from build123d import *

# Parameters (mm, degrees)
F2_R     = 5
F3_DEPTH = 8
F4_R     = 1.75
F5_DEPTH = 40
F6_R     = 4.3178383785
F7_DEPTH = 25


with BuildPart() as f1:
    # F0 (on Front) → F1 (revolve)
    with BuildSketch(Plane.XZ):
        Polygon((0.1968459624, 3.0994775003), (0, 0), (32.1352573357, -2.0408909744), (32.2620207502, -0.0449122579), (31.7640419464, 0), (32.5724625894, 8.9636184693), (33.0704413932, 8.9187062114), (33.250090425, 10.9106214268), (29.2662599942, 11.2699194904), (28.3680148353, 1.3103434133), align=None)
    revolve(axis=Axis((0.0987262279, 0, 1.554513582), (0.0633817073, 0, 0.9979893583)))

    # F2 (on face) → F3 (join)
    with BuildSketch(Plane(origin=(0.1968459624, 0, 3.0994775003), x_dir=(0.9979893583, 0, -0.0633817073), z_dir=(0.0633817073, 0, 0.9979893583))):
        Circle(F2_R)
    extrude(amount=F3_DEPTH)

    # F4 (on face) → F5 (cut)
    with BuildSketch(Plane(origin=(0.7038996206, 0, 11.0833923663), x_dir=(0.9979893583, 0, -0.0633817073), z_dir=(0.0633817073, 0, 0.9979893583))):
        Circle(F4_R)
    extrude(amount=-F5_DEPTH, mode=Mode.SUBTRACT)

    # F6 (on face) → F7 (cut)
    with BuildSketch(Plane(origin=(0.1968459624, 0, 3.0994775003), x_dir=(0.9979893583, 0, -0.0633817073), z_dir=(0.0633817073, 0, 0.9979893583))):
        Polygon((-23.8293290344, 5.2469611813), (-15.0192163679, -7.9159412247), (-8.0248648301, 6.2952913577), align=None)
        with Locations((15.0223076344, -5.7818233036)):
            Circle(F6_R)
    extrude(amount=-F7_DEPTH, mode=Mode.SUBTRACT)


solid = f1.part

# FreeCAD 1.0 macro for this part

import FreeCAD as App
import Part
import Sketcher
from FreeCAD import Vector
Q = App.Units.Quantity

doc = App.newDocument("Part")
params = doc.addObject("Spreadsheet::Sheet", "Params")
for row, (alias, value) in enumerate([
    ("sketch1_length", "2 mm"),
    ("sketch1_length2", "9 mm"),
    ("sketch1_length3", "4 mm"),
    ("sketch1_length4", "10 mm"),
    ("sketch1_length5", "32.2 mm"),
    ("revolution_angle", "360 deg"),
    ("sketch2_diameter", "10 mm"),
    ("pad1_length", "8 mm"),
    ("sketch3_diameter", "3.5 mm"),
    ("pocket1_length", "40 mm"),
    ("pocket2_length", "25 mm"),
], start=1):
    params.set(f"A{row}", alias)
    params.set(f"B{row}", "=" + value)
    params.setAlias(f"B{row}", alias)

body = doc.addObject("PartDesign::Body", "Body")

# Sketch on XZ plane
sketch1 = body.newObject("Sketcher::SketchObject", "Sketch")
sketch1.AttachmentSupport = (doc.getObject("XZ_Plane"), [""])
sketch1.MapMode = "FlatFace"
sketch1.addGeometry(Part.LineSegment(Vector(0.196846, 3.099477, 0), Vector(0, 0, 0)), False)
sketch1.addGeometry(Part.LineSegment(Vector(0, 0, 0), Vector(32.135257, -2.040891, 0)), False)
sketch1.addGeometry(Part.LineSegment(Vector(32.135257, -2.040891, 0), Vector(32.262021, -0.044912, 0)), False)
sketch1.addGeometry(Part.LineSegment(Vector(32.262021, -0.044912, 0), Vector(31.764042, 0, 0)), False)
sketch1.addGeometry(Part.LineSegment(Vector(31.764042, 0, 0), Vector(32.572463, 8.963618, 0)), False)
sketch1.addGeometry(Part.LineSegment(Vector(32.572463, 8.963618, 0), Vector(33.070441, 8.918706, 0)), False)
sketch1.addGeometry(Part.LineSegment(Vector(33.070441, 8.918706, 0), Vector(33.25009, 10.910621, 0)), False)
sketch1.addGeometry(Part.LineSegment(Vector(33.25009, 10.910621, 0), Vector(29.26626, 11.269919, 0)), False)
sketch1.addGeometry(Part.LineSegment(Vector(29.26626, 11.269919, 0), Vector(28.368015, 1.310343, 0)), False)
sketch1.addGeometry(Part.LineSegment(Vector(28.368015, 1.310343, 0), Vector(0.196846, 3.099477, 0)), False)
sketch1.addGeometry(Part.LineSegment(Vector(0, 0, 0), Vector(0.83044, 13.075861, 0)), True)  # axis
sketch1.addConstraint(Sketcher.Constraint("Coincident", 0, 2, 1, 1))
sketch1.addConstraint(Sketcher.Constraint("Coincident", 1, 2, 2, 1))
sketch1.addConstraint(Sketcher.Constraint("Coincident", 2, 2, 3, 1))
sketch1.addConstraint(Sketcher.Constraint("Coincident", 3, 2, 4, 1))
sketch1.addConstraint(Sketcher.Constraint("Coincident", 4, 2, 5, 1))
sketch1.addConstraint(Sketcher.Constraint("Coincident", 5, 2, 6, 1))
sketch1.addConstraint(Sketcher.Constraint("Coincident", 6, 2, 7, 1))
sketch1.addConstraint(Sketcher.Constraint("Coincident", 7, 2, 8, 1))
sketch1.addConstraint(Sketcher.Constraint("Coincident", 8, 2, 9, 1))
sketch1.addConstraint(Sketcher.Constraint("Coincident", 9, 2, 0, 1))
sketch1.addConstraint(Sketcher.Constraint("Coincident", 0, 2, -1, 1))
sketch1.addConstraint(Sketcher.Constraint("Coincident", 10, 1, -1, 1))
sketch1.addConstraint(Sketcher.Constraint("PointOnObject", 3, 2, -1))
sketch1.addConstraint(Sketcher.Constraint("Perpendicular", 0, 1))
sketch1.addConstraint(Sketcher.Constraint("Perpendicular", 1, 2))
sketch1.addConstraint(Sketcher.Constraint("Perpendicular", 3, 4))
sketch1.addConstraint(Sketcher.Constraint("Perpendicular", 4, 5))
sketch1.addConstraint(Sketcher.Constraint("Perpendicular", 5, 6))
sketch1.addConstraint(Sketcher.Constraint("Perpendicular", 6, 7))
sketch1.addConstraint(Sketcher.Constraint("Perpendicular", 7, 8))
sketch1.addConstraint(Sketcher.Constraint("Perpendicular", 2, 9))
sketch1.addConstraint(Sketcher.Constraint("Perpendicular", 9, 10))
sketch1.addConstraint(Sketcher.Constraint("Equal", 3, 5))
sketch1.addConstraint(Sketcher.Constraint("Equal", 2, 6))
sketch1.addConstraint(Sketcher.Constraint("Distance", 2, Q("2 mm")))
sketch1.addConstraint(Sketcher.Constraint("Distance", 4, Q("9 mm")))
sketch1.addConstraint(Sketcher.Constraint("Distance", 7, Q("4 mm")))
sketch1.addConstraint(Sketcher.Constraint("Distance", 8, Q("10 mm")))
sketch1.addConstraint(Sketcher.Constraint("Distance", 1, Q("32.2 mm")))
sketch1.addConstraint(Sketcher.Constraint("Distance", 3, Q("0.5 mm")))
sketch1.addConstraint(Sketcher.Constraint("DistanceX", 3, 2, 5, 2, Q("1.306399 mm")))
sketch1.addConstraint(Sketcher.Constraint("DistanceX", -1, 1, 10, 2, Q("0.83044 mm")))
sketch1.setExpression("Constraints[24]", "Params.sketch1_length")
sketch1.setExpression("Constraints[25]", "Params.sketch1_length2")
sketch1.setExpression("Constraints[26]", "Params.sketch1_length3")
sketch1.setExpression("Constraints[27]", "Params.sketch1_length4")
sketch1.setExpression("Constraints[28]", "Params.sketch1_length5")
revolution = body.newObject("PartDesign::Revolution", "Revolution")
revolution.Profile = sketch1
revolution.ReferenceAxis = (sketch1, ["Axis0"])
revolution.setExpression("Angle", "Params.revolution_angle")

# Sketch on an angled plane
sketch2 = body.newObject("Sketcher::SketchObject", "Sketch001")
sketch2.Placement = App.Placement(Vector(0.196846, 0, 3.099477), App.Rotation(Vector(0.997989358, 0, -0.063381707), Vector(0, 0.999999999, 0), Vector(0.063381707, 0, 0.997989358), "ZXY"))
sketch2.addGeometry(Part.Circle(Vector(0, 0, 0), Vector(0, 0, 1), 5), False)
sketch2.addConstraint(Sketcher.Constraint("Coincident", 0, 3, -1, 1))
sketch2.addConstraint(Sketcher.Constraint("Diameter", 0, Q("10 mm")))
sketch2.setExpression("Constraints[1]", "Params.sketch2_diameter")
pad1 = body.newObject("PartDesign::Pad", "Pad")
pad1.Profile = sketch2
pad1.setExpression("Length", "Params.pad1_length")

# Sketch on an angled plane
sketch3 = body.newObject("Sketcher::SketchObject", "Sketch002")
sketch3.Placement = App.Placement(Vector(0.7039, 0, 11.083392), App.Rotation(Vector(0.997989358, 0, -0.063381707), Vector(0, 0.999999999, 0), Vector(0.063381707, 0, 0.997989358), "ZXY"))
sketch3.addGeometry(Part.Circle(Vector(0, 0, 0), Vector(0, 0, 1), 1.75), False)
sketch3.addConstraint(Sketcher.Constraint("Coincident", 0, 3, -1, 1))
sketch3.addConstraint(Sketcher.Constraint("Diameter", 0, Q("3.5 mm")))
sketch3.setExpression("Constraints[1]", "Params.sketch3_diameter")
pocket1 = body.newObject("PartDesign::Pocket", "Pocket")
pocket1.Profile = sketch3
pocket1.setExpression("Length", "Params.pocket1_length")

# Sketch on an angled plane
sketch4 = body.newObject("Sketcher::SketchObject", "Sketch003")
sketch4.Placement = App.Placement(Vector(0.196846, 0, 3.099477), App.Rotation(Vector(0.997989358, 0, -0.063381707), Vector(0, 0.999999999, 0), Vector(0.063381707, 0, 0.997989358), "ZXY"))
sketch4.addGeometry(Part.LineSegment(Vector(-23.829329, 5.246961, 0), Vector(-15.019216, -7.915941, 0)), False)
sketch4.addGeometry(Part.LineSegment(Vector(-15.019216, -7.915941, 0), Vector(-8.024865, 6.295291, 0)), False)
sketch4.addGeometry(Part.LineSegment(Vector(-8.024865, 6.295291, 0), Vector(-23.829329, 5.246961, 0)), False)
sketch4.addGeometry(Part.Circle(Vector(15.022308, -5.781823, 0), Vector(0, 0, 1), 4.317838), False)
sketch4.addConstraint(Sketcher.Constraint("Coincident", 0, 2, 1, 1))
sketch4.addConstraint(Sketcher.Constraint("Coincident", 1, 2, 2, 1))
sketch4.addConstraint(Sketcher.Constraint("Coincident", 2, 2, 0, 1))
sketch4.addConstraint(Sketcher.Constraint("Equal", 0, 1))
sketch4.addConstraint(Sketcher.Constraint("Equal", 1, 2))
sketch4.addConstraint(Sketcher.Constraint("Diameter", 3, Q("8.635677 mm")))
sketch4.addConstraint(Sketcher.Constraint("DistanceY", 0, 2, -1, 1, Q("7.915941 mm")))
sketch4.addConstraint(Sketcher.Constraint("DistanceY", -1, 1, 1, 2, Q("6.295291 mm")))
sketch4.addConstraint(Sketcher.Constraint("DistanceX", 2, 2, -1, 1, Q("23.829329 mm")))
sketch4.addConstraint(Sketcher.Constraint("DistanceY", -1, 1, 2, 2, Q("5.246961 mm")))
sketch4.addConstraint(Sketcher.Constraint("DistanceX", -1, 1, 3, 3, Q("15.022308 mm")))
sketch4.addConstraint(Sketcher.Constraint("DistanceY", 3, 3, -1, 1, Q("5.781823 mm")))
pocket2 = body.newObject("PartDesign::Pocket", "Pocket001")
pocket2.Profile = sketch4
pocket2.setExpression("Length", "Params.pocket2_length")

doc.recompute()
